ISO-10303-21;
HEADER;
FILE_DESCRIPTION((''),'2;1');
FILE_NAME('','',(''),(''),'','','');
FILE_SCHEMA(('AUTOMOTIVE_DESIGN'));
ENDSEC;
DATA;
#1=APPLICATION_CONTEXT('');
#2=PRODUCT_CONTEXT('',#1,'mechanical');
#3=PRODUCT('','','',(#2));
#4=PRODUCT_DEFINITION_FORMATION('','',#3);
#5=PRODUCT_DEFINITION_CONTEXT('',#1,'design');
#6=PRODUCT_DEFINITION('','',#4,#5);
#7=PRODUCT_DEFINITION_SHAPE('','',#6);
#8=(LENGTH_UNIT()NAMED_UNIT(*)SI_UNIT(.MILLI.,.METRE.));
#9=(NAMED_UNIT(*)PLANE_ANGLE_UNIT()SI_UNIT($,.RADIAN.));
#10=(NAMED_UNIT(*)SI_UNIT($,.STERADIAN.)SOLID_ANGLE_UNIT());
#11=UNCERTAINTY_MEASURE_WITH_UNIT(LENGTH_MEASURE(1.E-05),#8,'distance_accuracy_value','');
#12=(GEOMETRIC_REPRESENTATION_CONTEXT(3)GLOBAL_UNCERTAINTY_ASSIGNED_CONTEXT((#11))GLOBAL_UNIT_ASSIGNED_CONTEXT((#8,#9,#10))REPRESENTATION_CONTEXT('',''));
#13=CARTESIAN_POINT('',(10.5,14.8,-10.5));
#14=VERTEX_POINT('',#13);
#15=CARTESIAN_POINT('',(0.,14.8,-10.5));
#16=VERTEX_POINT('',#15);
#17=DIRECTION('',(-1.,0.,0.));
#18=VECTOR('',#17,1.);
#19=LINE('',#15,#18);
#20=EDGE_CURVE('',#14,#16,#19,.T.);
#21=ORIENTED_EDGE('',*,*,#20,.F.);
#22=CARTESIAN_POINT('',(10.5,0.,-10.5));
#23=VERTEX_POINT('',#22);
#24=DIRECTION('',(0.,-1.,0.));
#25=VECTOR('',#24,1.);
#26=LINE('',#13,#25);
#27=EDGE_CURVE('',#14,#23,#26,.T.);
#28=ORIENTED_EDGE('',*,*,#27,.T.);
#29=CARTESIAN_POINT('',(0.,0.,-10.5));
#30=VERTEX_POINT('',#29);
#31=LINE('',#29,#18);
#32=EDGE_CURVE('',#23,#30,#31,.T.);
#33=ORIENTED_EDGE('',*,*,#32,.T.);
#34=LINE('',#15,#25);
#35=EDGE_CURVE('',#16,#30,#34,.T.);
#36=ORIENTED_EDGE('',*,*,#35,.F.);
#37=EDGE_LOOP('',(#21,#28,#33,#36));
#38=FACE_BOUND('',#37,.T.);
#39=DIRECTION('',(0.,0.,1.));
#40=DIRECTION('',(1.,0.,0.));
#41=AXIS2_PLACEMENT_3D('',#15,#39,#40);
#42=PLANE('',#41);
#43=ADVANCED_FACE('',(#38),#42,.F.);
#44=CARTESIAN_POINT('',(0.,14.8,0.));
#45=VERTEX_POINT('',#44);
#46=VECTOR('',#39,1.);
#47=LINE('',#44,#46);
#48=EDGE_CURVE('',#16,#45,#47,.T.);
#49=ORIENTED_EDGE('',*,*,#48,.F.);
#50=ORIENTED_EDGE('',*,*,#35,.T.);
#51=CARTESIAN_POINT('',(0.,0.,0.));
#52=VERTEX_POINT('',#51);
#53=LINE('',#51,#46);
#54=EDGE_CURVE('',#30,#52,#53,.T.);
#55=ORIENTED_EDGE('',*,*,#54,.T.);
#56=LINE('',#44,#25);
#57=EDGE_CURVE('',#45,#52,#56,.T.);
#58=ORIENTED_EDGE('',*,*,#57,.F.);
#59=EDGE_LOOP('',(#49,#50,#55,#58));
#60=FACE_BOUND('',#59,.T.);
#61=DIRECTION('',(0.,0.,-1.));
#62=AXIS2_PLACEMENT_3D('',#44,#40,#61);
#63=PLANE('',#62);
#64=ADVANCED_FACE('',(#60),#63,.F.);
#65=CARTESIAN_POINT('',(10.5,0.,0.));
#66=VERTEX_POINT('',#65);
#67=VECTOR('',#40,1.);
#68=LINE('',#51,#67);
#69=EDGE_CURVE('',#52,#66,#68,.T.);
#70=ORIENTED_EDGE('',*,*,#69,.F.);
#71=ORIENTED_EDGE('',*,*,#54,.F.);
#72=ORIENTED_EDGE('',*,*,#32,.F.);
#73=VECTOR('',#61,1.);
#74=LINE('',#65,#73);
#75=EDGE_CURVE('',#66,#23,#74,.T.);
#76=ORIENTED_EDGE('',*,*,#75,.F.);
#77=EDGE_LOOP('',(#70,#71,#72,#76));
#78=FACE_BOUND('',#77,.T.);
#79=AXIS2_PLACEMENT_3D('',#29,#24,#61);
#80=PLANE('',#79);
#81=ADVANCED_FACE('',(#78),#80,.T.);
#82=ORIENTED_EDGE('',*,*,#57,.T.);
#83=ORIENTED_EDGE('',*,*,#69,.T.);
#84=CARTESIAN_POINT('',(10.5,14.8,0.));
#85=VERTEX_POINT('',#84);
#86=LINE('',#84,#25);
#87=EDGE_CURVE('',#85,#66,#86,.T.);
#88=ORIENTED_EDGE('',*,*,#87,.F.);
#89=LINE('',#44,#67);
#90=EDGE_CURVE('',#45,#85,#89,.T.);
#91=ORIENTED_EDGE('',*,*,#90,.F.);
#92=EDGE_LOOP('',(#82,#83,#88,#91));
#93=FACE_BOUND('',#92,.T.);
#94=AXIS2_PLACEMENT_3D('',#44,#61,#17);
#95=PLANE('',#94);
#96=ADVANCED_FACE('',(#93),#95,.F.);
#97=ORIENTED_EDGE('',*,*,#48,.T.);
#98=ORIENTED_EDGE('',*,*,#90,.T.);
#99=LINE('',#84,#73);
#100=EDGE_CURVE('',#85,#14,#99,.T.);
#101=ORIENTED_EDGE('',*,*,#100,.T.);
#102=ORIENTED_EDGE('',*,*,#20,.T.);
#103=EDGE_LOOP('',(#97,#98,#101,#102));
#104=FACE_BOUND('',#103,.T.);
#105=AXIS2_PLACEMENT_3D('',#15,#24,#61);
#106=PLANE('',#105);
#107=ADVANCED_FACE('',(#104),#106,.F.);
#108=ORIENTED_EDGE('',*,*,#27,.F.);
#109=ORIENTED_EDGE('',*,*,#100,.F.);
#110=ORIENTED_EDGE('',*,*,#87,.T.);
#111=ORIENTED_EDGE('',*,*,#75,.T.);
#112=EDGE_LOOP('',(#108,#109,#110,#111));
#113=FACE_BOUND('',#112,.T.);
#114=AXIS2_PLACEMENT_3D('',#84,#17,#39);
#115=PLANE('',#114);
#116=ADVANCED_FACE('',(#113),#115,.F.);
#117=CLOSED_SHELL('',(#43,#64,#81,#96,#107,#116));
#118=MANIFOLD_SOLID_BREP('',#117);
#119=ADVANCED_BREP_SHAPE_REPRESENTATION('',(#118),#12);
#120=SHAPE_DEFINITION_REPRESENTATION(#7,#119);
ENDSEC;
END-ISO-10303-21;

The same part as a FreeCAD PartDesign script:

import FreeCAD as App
import Part
import Sketcher

V = App.Vector
Q = App.Units.Quantity

doc = App.newDocument("Part")
body = doc.addObject("PartDesign::Body", "Body")

sketch1 = body.newObject("Sketcher::SketchObject", "Sketch")
sketch1.AttachmentSupport = (doc.getObject("XZ_Plane"), [""])
sketch1.MapMode = "FlatFace"
sketch1.addGeometry([
    Part.LineSegment(V(0, -10, 0), V(0, 0, 0)),
    Part.LineSegment(V(0, 0, 0), V(10, 0, 0)),
    Part.LineSegment(V(10, 0, 0), V(10, -10, 0)),
    Part.LineSegment(V(10, -10, 0), V(0, -10, 0)),
], False)
sketch1.addConstraint([
    Sketcher.Constraint("Coincident", 0, 2, 1, 1),
    Sketcher.Constraint("Coincident", 1, 2, 2, 1),
    Sketcher.Constraint("Coincident", 2, 2, 3, 1),
    Sketcher.Constraint("Coincident", 3, 2, 0, 1),
    Sketcher.Constraint("Vertical", 0),
    Sketcher.Constraint("Horizontal", 1),
    Sketcher.Constraint("Vertical", 2),
    Sketcher.Constraint("Horizontal", 3),
    Sketcher.Constraint("Coincident", 0, 2, -1, 1),
    Sketcher.Constraint("Equal", 3, 0),
    Sketcher.Constraint("DistanceX", 1, 1, 1, 2, Q("10.5 mm")),
])
pad1 = body.newObject("PartDesign::Pad", "Pad")
pad1.Profile = sketch1
pad1.Length = 14.8
pad1.Reversed = True

doc.recompute()
